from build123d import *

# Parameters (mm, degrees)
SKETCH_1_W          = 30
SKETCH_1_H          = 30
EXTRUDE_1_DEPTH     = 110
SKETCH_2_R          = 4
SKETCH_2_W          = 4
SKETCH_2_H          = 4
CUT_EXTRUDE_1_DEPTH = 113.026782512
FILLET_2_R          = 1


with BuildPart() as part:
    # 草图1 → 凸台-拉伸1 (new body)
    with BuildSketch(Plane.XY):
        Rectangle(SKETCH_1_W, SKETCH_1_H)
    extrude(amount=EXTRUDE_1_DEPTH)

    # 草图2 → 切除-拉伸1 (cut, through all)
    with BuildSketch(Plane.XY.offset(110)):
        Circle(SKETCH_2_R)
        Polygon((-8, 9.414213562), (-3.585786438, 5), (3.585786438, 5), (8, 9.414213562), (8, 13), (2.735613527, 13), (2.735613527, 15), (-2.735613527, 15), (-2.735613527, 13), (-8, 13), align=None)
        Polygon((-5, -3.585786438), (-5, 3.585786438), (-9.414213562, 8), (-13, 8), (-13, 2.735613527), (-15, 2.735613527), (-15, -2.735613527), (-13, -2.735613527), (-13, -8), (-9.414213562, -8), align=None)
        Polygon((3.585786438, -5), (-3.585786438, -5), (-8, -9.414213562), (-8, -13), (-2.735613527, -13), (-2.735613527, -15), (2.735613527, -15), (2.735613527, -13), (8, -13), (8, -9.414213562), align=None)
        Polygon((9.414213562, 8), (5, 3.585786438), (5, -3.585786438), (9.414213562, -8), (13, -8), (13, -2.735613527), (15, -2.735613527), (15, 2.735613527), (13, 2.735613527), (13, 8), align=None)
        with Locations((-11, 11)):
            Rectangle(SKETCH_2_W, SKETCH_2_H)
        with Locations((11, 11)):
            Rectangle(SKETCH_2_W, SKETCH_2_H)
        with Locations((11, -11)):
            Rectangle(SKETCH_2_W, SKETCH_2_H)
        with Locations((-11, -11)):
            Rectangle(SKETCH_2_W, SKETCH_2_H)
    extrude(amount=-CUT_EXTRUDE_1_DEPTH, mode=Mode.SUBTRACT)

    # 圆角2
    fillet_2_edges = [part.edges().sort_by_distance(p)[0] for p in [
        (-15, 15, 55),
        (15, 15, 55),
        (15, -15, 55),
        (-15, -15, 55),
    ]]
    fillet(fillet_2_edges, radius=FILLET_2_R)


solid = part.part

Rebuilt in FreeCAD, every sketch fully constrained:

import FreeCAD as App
import Part
import Sketcher
from FreeCAD import Vector
Q = App.Units.Quantity


def edges_at(feature, points):
    """Names of the edges that pass closest to the given points."""
    edges = feature.Shape.Edges
    near = lambda p: min(range(len(edges)), key=lambda i: edges[i].distToShape(Part.Vertex(*p))[0])
    return sorted({f"Edge{near(p) + 1}" for p in points})


def add_polygon(sketch, points):
    """Adds a closed chain of lines whose ends are joined by coincident constraints."""
    first, n = sketch.GeometryCount, len(points)
    for a, b in zip(points, points[1:] + points[:1]):
        sketch.addGeometry(Part.LineSegment(App.Vector(*a, 0), App.Vector(*b, 0)), False)
    for i in range(n):
        sketch.addConstraint(Sketcher.Constraint("Coincident", first + i, 2, first + (i + 1) % n, 1))

doc = App.newDocument("Part")
params = doc.addObject("Spreadsheet::Sheet", "Params")
for row, (alias, value) in enumerate([
    ("sketch1_width", "30 mm"),
    ("pad1_length", "110 mm"),
    ("sketch2_diameter", "8 mm"),
    ("sketch2_width", "2 mm"),
    ("sketch2_width2", "4 mm"),
    ("fillet_radius", "1 mm"),
], start=1):
    params.set(f"A{row}", alias)
    params.set(f"B{row}", "=" + value)
    params.setAlias(f"B{row}", alias)

body = doc.addObject("PartDesign::Body", "Body")

# Sketch on XY plane
sketch1 = body.newObject("Sketcher::SketchObject", "Sketch")
sketch1.AttachmentSupport = (doc.getObject("XY_Plane"), [""])
sketch1.MapMode = "FlatFace"
add_polygon(sketch1, [(-15, 15), (-15, -15), (15, -15), (15, 15)])  # lines 0-3
sketch1.addConstraint([
    Sketcher.Constraint("Vertical", 0),
    Sketcher.Constraint("Horizontal", 1),
    Sketcher.Constraint("Vertical", 2),
    Sketcher.Constraint("Horizontal", 3),
    Sketcher.Constraint("Symmetric", 0, 2, 2, 2, -1, 1),
    Sketcher.Constraint("Equal", 3, 0),
    Sketcher.Constraint("DistanceX", 1, 1, 1, 2, Q("30 mm")),
])
sketch1.setExpression("Constraints[10]", "Params.sketch1_width")
pad1 = body.newObject("PartDesign::Pad", "Pad")
pad1.Profile = sketch1
pad1.setExpression("Length", "Params.pad1_length")

# Sketch on XY plane
sketch2 = body.newObject("Sketcher::SketchObject", "Sketch001")
sketch2.AttachmentSupport = (doc.getObject("XY_Plane"), [""])
sketch2.MapMode = "FlatFace"
sketch2.AttachmentOffset = App.Placement(Vector(0, 0, 110), App.Rotation())
sketch2.addGeometry(Part.Circle(Vector(0, 0, 0), Vector(0, 0, 1), 4), False)  # 0
add_polygon(sketch2, [(-8, 9.414214), (-3.585786, 5), (3.585786, 5), (8, 9.414214), (8, 13), (2.735614, 13), (2.735614, 15), (-2.735614, 15), (-2.735614, 13), (-8, 13)])  # lines 1-10
add_polygon(sketch2, [(-5, -3.585786), (-5, 3.585786), (-9.414214, 8), (-13, 8), (-13, 2.735614), (-15, 2.735614), (-15, -2.735614), (-13, -2.735614), (-13, -8), (-9.414214, -8)])  # lines 11-20
add_polygon(sketch2, [(3.585786, -5), (-3.585786, -5), (-8, -9.414214), (-8, -13), (-2.735614, -13), (-2.735614, -15), (2.735614, -15), (2.735614, -13), (8, -13), (8, -9.414214)])  # lines 21-30
add_polygon(sketch2, [(9.414214, 8), (5, 3.585786), (5, -3.585786), (9.414214, -8), (13, -8), (13, -2.735614), (15, -2.735614), (15, 2.735614), (13, 2.735614), (13, 8)])  # lines 31-40
add_polygon(sketch2, [(-13, 13), (-13, 9), (-9, 9), (-9, 13)])  # lines 41-44
add_polygon(sketch2, [(9, 13), (9, 9), (13, 9), (13, 13)])  # lines 45-48
add_polygon(sketch2, [(9, -9), (9, -13), (13, -13), (13, -9)])  # lines 49-52
add_polygon(sketch2, [(-13, -9), (-13, -13), (-9, -13), (-9, -9)])  # lines 53-56
sketch2.addConstraint([
    Sketcher.Constraint("Horizontal", 2),
    Sketcher.Constraint("Vertical", 4),
    Sketcher.Constraint("Horizontal", 5),
    Sketcher.Constraint("Vertical", 6),
    Sketcher.Constraint("Horizontal", 7),
    Sketcher.Constraint("Vertical", 8),
    Sketcher.Constraint("Horizontal", 9),
    Sketcher.Constraint("Vertical", 10),
    Sketcher.Constraint("Vertical", 11),
    Sketcher.Constraint("Horizontal", 13),
    Sketcher.Constraint("Vertical", 14),
    Sketcher.Constraint("Horizontal", 15),
    Sketcher.Constraint("Vertical", 16),
    Sketcher.Constraint("Horizontal", 17),
    Sketcher.Constraint("Vertical", 18),
    Sketcher.Constraint("Horizontal", 19),
    Sketcher.Constraint("Horizontal", 21),
    Sketcher.Constraint("Vertical", 23),
    Sketcher.Constraint("Horizontal", 24),
    Sketcher.Constraint("Vertical", 25),
    Sketcher.Constraint("Horizontal", 26),
    Sketcher.Constraint("Vertical", 27),
    Sketcher.Constraint("Horizontal", 28),
    Sketcher.Constraint("Vertical", 29),
    Sketcher.Constraint("Vertical", 32),
    Sketcher.Constraint("Horizontal", 34),
    Sketcher.Constraint("Vertical", 35),
    Sketcher.Constraint("Horizontal", 36),
    Sketcher.Constraint("Vertical", 37),
    Sketcher.Constraint("Horizontal", 38),
    Sketcher.Constraint("Vertical", 39),
    Sketcher.Constraint("Horizontal", 40),
    Sketcher.Constraint("Vertical", 41),
    Sketcher.Constraint("Horizontal", 42),
    Sketcher.Constraint("Vertical", 43),
    Sketcher.Constraint("Horizontal", 44),
    Sketcher.Constraint("Vertical", 45),
    Sketcher.Constraint("Horizontal", 46),
    Sketcher.Constraint("Vertical", 47),
    Sketcher.Constraint("Horizontal", 48),
    Sketcher.Constraint("Vertical", 49),
    Sketcher.Constraint("Horizontal", 50),
    Sketcher.Constraint("Vertical", 51),
    Sketcher.Constraint("Horizontal", 52),
    Sketcher.Constraint("Vertical", 53),
    Sketcher.Constraint("Horizontal", 54),
    Sketcher.Constraint("Vertical", 55),
    Sketcher.Constraint("Horizontal", 56),
    Sketcher.Constraint("Coincident", 0, 3, -1, 1),
    Sketcher.Constraint("Symmetric", 2, 2, 21, 2, -1, 1),
    Sketcher.Constraint("Symmetric", 3, 2, 22, 2, -1, 1),
    Sketcher.Constraint("Symmetric", 5, 2, 24, 2, -1, 1),
    Sketcher.Constraint("Symmetric", 7, 2, 26, 2, -1, 1),
    Sketcher.Constraint("Symmetric", 9, 2, 28, 2, -1, 1),
    Sketcher.Constraint("Symmetric", 20, 2, 31, 2, -1, 1),
    Sketcher.Constraint("Symmetric", 12, 2, 33, 2, -1, 1),
    Sketcher.Constraint("Symmetric", 14, 2, 35, 2, -1, 1),
    Sketcher.Constraint("Symmetric", 16, 2, 37, 2, -1, 1),
    Sketcher.Constraint("Symmetric", 18, 2, 39, 2, -1, 1),
    Sketcher.Constraint("Symmetric", 43, 2, 49, 2, -1, 1),
    Sketcher.Constraint("Symmetric", 41, 2, 51, 2, -1, 1),
    Sketcher.Constraint("Symmetric", 47, 2, 53, 2, -1, 1),
    Sketcher.Constraint("Symmetric", 45, 2, 55, 2, -1, 1),
    Sketcher.Constraint("Symmetric", 5, 2, 8, 2, -2),
    Sketcher.Constraint("Symmetric", 3, 2, 10, 2, -2),
    Sketcher.Constraint("Symmetric", 19, 2, 33, 2, -2),
    Sketcher.Constraint("Symmetric", 17, 2, 35, 2, -2),
    Sketcher.Constraint("Symmetric", 42, 2, 45, 2, -2),
    Sketcher.Constraint("Symmetric", 44, 2, 47, 2, -2),
    Sketcher.Constraint("Perpendicular", 1, 3),
    Sketcher.Constraint("Perpendicular", 3, 12),
    Sketcher.Constraint("Perpendicular", 12, 20),
    Sketcher.Constraint("Perpendicular", 22, 30),
    Sketcher.Constraint("Perpendicular", 30, 31),
    Sketcher.Constraint("Perpendicular", 31, 33),
    Sketcher.Constraint("Horizontal", 22, 2, 29, 2),
    Sketcher.Constraint("Horizontal", 11, 2, 31, 2),
    Sketcher.Constraint("Horizontal", 9, 2, 43, 2),
    Sketcher.Constraint("Vertical", 18, 2, 41, 2),
    Sketcher.Constraint("Equal", 40, 4),
    Sketcher.Constraint("Equal", 38, 6),
    Sketcher.Constraint("Equal", 21, 11),
    Sketcher.Constraint("Equal", 28, 14),
    Sketcher.Constraint("Equal", 26, 16),
    Sketcher.Constraint("Equal", 56, 41),
    Sketcher.Constraint("Diameter", 0, Q("8 mm")),
    Sketcher.Constraint("DistanceX", 15, 2, 15, 1, Q("2 mm")),
    Sketcher.Constraint("DistanceX", 42, 1, 42, 2, Q("4 mm")),
    Sketcher.Constraint("DistanceY", -1, 1, 1, 2, Q("5 mm")),
    Sketcher.Constraint("DistanceX", -1, 1, 3, 2, Q("8 mm")),
    Sketcher.Constraint("DistanceY", -1, 1, 4, 2, Q("13 mm")),
    Sketcher.Constraint("DistanceX", 11, 2, -1, 1, Q("5 mm")),
    Sketcher.Constraint("DistanceX", 1, 2, 5, 2, Q("6.3214 mm")),
    Sketcher.Constraint("Distance", 1, Q("6.242641 mm")),
])
sketch2.setExpression("Constraints[141]", "Params.sketch2_diameter")
sketch2.setExpression("Constraints[142]", "Params.sketch2_width")
sketch2.setExpression("Constraints[143]", "Params.sketch2_width2")
pocket1 = body.newObject("PartDesign::Pocket", "Pocket")
pocket1.Profile = sketch2
pocket1.Type = "ThroughAll"
doc.recompute()

fillet = body.newObject("PartDesign::Fillet", "Fillet")
fillet.Base = (pocket1, edges_at(pocket1, [
    (-15, 15, 55),
    (15, 15, 55),
    (15, -15, 55),
    (-15, -15, 55),
]))
fillet.setExpression("Radius", "Params.fillet_radius")

doc.recompute()
